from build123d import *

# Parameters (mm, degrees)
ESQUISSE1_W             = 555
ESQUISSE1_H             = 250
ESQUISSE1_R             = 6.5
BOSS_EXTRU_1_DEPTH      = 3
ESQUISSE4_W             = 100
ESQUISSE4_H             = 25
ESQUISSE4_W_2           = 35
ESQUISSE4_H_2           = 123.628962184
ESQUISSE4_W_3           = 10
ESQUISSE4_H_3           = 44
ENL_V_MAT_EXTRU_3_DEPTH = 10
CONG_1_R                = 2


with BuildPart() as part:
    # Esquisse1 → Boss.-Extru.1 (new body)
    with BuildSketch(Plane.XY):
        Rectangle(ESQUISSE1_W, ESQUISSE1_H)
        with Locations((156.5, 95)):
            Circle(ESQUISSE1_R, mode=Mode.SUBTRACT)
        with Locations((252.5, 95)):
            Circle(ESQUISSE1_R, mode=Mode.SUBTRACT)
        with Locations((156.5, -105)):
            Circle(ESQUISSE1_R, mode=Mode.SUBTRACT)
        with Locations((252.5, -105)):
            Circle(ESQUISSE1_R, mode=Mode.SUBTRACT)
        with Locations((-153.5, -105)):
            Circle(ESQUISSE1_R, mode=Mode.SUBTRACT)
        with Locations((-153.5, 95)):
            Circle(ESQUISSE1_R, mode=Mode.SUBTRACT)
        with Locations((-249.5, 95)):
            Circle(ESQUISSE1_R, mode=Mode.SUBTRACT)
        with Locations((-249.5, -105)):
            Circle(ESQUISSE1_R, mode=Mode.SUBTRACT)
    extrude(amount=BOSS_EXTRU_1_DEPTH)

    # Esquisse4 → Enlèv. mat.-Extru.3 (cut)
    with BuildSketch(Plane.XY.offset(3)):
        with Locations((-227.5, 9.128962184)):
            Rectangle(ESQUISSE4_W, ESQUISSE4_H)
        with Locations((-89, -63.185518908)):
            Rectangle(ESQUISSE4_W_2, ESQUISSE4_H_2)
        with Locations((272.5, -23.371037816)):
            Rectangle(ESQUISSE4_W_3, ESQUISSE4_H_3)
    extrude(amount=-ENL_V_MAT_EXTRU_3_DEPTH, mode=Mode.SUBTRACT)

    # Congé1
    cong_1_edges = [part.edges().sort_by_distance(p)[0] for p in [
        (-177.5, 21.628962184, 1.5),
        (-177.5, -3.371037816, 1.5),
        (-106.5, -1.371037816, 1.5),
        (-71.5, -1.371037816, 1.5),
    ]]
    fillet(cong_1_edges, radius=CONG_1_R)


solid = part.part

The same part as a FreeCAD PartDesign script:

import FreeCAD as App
import Part
import Sketcher

V = App.Vector
Q = App.Units.Quantity


def edges_at(feature, points):
    """Names of the edges that pass closest to the given points."""
    edges = feature.Shape.Edges
    near = lambda p: min(range(len(edges)), key=lambda i: edges[i].distToShape(Part.Vertex(*p))[0])
    return sorted({f"Edge{near(p) + 1}" for p in points})

doc = App.newDocument("Part")
body = doc.addObject("PartDesign::Body", "Body")

# Sketch on XY plane
sketch1 = body.newObject("Sketcher::SketchObject", "Sketch")
sketch1.AttachmentSupport = (doc.getObject("XY_Plane"), [""])
sketch1.MapMode = "FlatFace"
sketch1.addGeometry([
    Part.LineSegment(V(-278, 125, 0), V(-278, -125, 0)),  # 0
    Part.LineSegment(V(-278, -125, 0), V(278, -125, 0)),  # 1
    Part.LineSegment(V(278, -125, 0), V(278, 125, 0)),  # 2
    Part.LineSegment(V(278, 125, 0), V(-278, 125, 0)),  # 3
    Part.Circle(V(-250, -105, 0), V(0, 0, 1), 6),  # 4
    Part.Circle(V(-154, -105, 0), V(0, 0, 1), 6),  # 5
    Part.Circle(V(156, -105, 0), V(0, 0, 1), 6),  # 6
    Part.Circle(V(252, -105, 0), V(0, 0, 1), 6),  # 7
    Part.Circle(V(-250, 95, 0), V(0, 0, 1), 6),  # 8
    Part.Circle(V(-154, 95, 0), V(0, 0, 1), 6),  # 9
    Part.Circle(V(156, 95, 0), V(0, 0, 1), 6),  # 10
    Part.Circle(V(252, 95, 0), V(0, 0, 1), 6),  # 11
], False)
sketch1.addConstraint([
    Sketcher.Constraint("Coincident", 0, 2, 1, 1),
    Sketcher.Constraint("Coincident", 1, 2, 2, 1),
    Sketcher.Constraint("Coincident", 2, 2, 3, 1),
    Sketcher.Constraint("Coincident", 3, 2, 0, 1),
    Sketcher.Constraint("Vertical", 0),
    Sketcher.Constraint("Horizontal", 1),
    Sketcher.Constraint("Vertical", 2),
    Sketcher.Constraint("Horizontal", 3),
    Sketcher.Constraint("Equal", 4, 5),
    Sketcher.Constraint("Equal", 5, 6),
    Sketcher.Constraint("Equal", 6, 7),
    Sketcher.Constraint("Equal", 7, 8),
    Sketcher.Constraint("Equal", 8, 9),
    Sketcher.Constraint("Equal", 9, 10),
    Sketcher.Constraint("Equal", 10, 11),
    Sketcher.Constraint("Symmetric", 0, 2, 2, 2, -1, 1),
    Sketcher.Constraint("Horizontal", 4, 3, 5, 3),
    Sketcher.Constraint("Horizontal", 5, 3, 6, 3),
    Sketcher.Constraint("Horizontal", 6, 3, 7, 3),
    Sketcher.Constraint("Horizontal", 8, 3, 9, 3),
    Sketcher.Constraint("Horizontal", 9, 3, 10, 3),
    Sketcher.Constraint("Horizontal", 10, 3, 11, 3),
    Sketcher.Constraint("Vertical", 4, 3, 8, 3),
    Sketcher.Constraint("Vertical", 5, 3, 9, 3),
    Sketcher.Constraint("Vertical", 6, 3, 10, 3),
    Sketcher.Constraint("Vertical", 7, 3, 11, 3),
    Sketcher.Constraint("Diameter", 4, Q("13 mm")),
    Sketcher.Constraint("DistanceX", 1, 1, 1, 2, Q("555 mm")),
    Sketcher.Constraint("DistanceY", 0, 2, 0, 1, Q("250 mm")),
    Sketcher.Constraint("DistanceY", 4, 3, -1, 1, Q("105 mm")),
    Sketcher.Constraint("DistanceY", -1, 1, 8, 3, Q("95 mm")),
    Sketcher.Constraint("DistanceX", 4, 3, 5, 3, Q("96 mm")),
    Sketcher.Constraint("DistanceX", 5, 3, 6, 3, Q("310 mm")),
    Sketcher.Constraint("DistanceX", 6, 3, 7, 3, Q("96 mm")),
    Sketcher.Constraint("DistanceX", 0, 2, 4, 3, Q("28 mm")),
])
pad1 = body.newObject("PartDesign::Pad", "Pad")
pad1.Profile = sketch1
pad1.Length = 3

# Sketch on XY plane
sketch2 = body.newObject("Sketcher::SketchObject", "Sketch001")
sketch2.AttachmentSupport = (doc.getObject("XY_Plane"), [""])
sketch2.MapMode = "FlatFace"
sketch2.AttachmentOffset = App.Placement(V(0, 0, 3), App.Rotation())
sketch2.addGeometry([
    Part.LineSegment(V(-278, 22, 0), V(-278, -3, 0)),  # 0
    Part.LineSegment(V(-278, -3, 0), V(-178, -3, 0)),  # 1
    Part.LineSegment(V(-178, -3, 0), V(-178, 22, 0)),  # 2
    Part.LineSegment(V(-178, 22, 0), V(-278, 22, 0)),  # 3
    Part.LineSegment(V(-106, -1, 0), V(-106, -125, 0)),  # 4
    Part.LineSegment(V(-106, -125, 0), V(-72, -125, 0)),  # 5
    Part.LineSegment(V(-72, -125, 0), V(-72, -1, 0)),  # 6
    Part.LineSegment(V(-72, -1, 0), V(-106, -1, 0)),  # 7
    Part.LineSegment(V(268, -1, 0), V(268, -45, 0)),  # 8
    Part.LineSegment(V(268, -45, 0), V(278, -45, 0)),  # 9
    Part.LineSegment(V(278, -45, 0), V(278, -1, 0)),  # 10
    Part.LineSegment(V(278, -1, 0), V(268, -1, 0)),  # 11
], False)
sketch2.addConstraint([
    Sketcher.Constraint("Coincident", 0, 2, 1, 1),
    Sketcher.Constraint("Coincident", 1, 2, 2, 1),
    Sketcher.Constraint("Coincident", 2, 2, 3, 1),
    Sketcher.Constraint("Coincident", 3, 2, 0, 1),
    Sketcher.Constraint("Coincident", 4, 2, 5, 1),
    Sketcher.Constraint("Coincident", 5, 2, 6, 1),
    Sketcher.Constraint("Coincident", 6, 2, 7, 1),
    Sketcher.Constraint("Coincident", 7, 2, 4, 1),
    Sketcher.Constraint("Coincident", 8, 2, 9, 1),
    Sketcher.Constraint("Coincident", 9, 2, 10, 1),
    Sketcher.Constraint("Coincident", 10, 2, 11, 1),
    Sketcher.Constraint("Coincident", 11, 2, 8, 1),
    Sketcher.Constraint("Vertical", 0),
    Sketcher.Constraint("Horizontal", 1),
    Sketcher.Constraint("Vertical", 2),
    Sketcher.Constraint("Horizontal", 3),
    Sketcher.Constraint("Vertical", 4),
    Sketcher.Constraint("Horizontal", 5),
    Sketcher.Constraint("Vertical", 6),
    Sketcher.Constraint("Horizontal", 7),
    Sketcher.Constraint("Vertical", 8),
    Sketcher.Constraint("Horizontal", 9),
    Sketcher.Constraint("Vertical", 10),
    Sketcher.Constraint("Horizontal", 11),
    Sketcher.Constraint("Horizontal", 7, 2, 10, 2),
    Sketcher.Constraint("DistanceX", 1, 1, 1, 2, Q("100 mm")),
    Sketcher.Constraint("DistanceX", 5, 1, 5, 2, Q("35 mm")),
    Sketcher.Constraint("DistanceX", 9, 1, 9, 2, Q("10 mm")),
    Sketcher.Constraint("DistanceY", 0, 2, 0, 1, Q("25 mm")),
    Sketcher.Constraint("DistanceY", 8, 2, 8, 1, Q("44 mm")),
    Sketcher.Constraint("DistanceY", 4, 2, -1, 1, Q("125 mm")),
    Sketcher.Constraint("DistanceX", 1, 2, 4, 2, Q("71 mm")),
    Sketcher.Constraint("DistanceY", 1, 2, 6, 2, Q("2 mm")),
    Sketcher.Constraint("DistanceX", 6, 2, 8, 2, Q("339 mm")),
    Sketcher.Constraint("DistanceX", 0, 2, -1, 1, Q("277.5 mm")),
    Sketcher.Constraint("DistanceY", 4, 2, 4, 1, Q("123.628962 mm")),
])
pocket1 = body.newObject("PartDesign::Pocket", "Pocket")
pocket1.Profile = sketch2
pocket1.Length = 10
doc.recompute()

fillet = body.newObject("PartDesign::Fillet", "Fillet")
fillet.Base = (pocket1, edges_at(pocket1, [
    (-177.5, 21.629, 1.5),
    (-177.5, -3.371, 1.5),
    (-106.5, -1.371, 1.5),
    (-71.5, -1.371, 1.5),
]))
fillet.Radius = 2

doc.recompute()
